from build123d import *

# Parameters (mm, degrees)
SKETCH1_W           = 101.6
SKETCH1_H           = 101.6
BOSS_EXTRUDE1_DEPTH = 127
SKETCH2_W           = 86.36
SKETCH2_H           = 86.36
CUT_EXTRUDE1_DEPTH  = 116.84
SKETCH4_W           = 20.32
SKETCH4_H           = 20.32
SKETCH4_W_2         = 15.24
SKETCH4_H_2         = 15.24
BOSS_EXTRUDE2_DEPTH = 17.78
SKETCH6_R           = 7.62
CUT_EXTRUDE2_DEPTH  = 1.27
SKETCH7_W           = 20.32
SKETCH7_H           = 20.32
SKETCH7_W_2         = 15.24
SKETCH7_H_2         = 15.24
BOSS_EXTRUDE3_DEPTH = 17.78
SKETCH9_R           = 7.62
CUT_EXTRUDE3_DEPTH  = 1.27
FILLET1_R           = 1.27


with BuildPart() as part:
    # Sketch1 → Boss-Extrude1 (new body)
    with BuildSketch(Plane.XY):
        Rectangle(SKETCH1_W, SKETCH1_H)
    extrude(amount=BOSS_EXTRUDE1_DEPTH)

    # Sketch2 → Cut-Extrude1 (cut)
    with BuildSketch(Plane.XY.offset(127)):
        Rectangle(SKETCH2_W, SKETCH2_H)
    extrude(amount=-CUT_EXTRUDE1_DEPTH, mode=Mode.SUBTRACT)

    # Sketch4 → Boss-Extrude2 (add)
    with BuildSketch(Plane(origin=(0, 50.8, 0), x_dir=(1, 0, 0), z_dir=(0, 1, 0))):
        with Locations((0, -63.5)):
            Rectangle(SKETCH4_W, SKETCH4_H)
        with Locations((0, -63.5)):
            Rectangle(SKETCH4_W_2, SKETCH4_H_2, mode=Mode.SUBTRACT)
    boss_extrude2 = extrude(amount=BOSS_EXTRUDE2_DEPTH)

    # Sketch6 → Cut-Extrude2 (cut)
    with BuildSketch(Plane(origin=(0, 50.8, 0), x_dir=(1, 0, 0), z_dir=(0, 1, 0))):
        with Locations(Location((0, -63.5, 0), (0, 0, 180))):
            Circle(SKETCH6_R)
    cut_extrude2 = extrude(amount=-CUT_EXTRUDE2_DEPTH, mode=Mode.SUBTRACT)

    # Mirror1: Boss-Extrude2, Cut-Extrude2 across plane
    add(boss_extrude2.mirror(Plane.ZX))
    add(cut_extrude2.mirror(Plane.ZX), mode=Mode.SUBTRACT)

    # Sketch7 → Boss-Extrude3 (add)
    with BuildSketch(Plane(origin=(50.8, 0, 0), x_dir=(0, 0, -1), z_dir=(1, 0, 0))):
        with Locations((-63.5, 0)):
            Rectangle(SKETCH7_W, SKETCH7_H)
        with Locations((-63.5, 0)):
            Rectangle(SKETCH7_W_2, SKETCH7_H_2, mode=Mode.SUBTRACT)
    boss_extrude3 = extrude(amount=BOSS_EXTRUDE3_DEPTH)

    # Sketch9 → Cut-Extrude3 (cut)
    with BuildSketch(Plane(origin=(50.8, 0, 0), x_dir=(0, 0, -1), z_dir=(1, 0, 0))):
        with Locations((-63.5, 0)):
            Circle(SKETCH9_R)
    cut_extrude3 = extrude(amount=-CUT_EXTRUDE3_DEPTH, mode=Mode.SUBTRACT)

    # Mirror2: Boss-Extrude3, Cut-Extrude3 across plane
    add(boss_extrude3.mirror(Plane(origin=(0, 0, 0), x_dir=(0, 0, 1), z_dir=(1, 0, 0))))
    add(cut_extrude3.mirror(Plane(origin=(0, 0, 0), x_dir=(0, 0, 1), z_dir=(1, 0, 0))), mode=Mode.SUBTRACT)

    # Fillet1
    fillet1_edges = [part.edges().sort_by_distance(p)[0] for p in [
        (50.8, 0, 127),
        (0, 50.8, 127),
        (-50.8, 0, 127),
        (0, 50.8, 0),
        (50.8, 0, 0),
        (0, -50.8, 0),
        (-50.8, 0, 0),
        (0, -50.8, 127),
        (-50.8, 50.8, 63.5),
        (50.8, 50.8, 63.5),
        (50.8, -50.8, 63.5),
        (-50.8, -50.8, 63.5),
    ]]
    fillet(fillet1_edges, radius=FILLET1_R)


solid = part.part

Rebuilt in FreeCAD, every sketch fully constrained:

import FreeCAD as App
import Part
import Sketcher
from FreeCAD import Vector
Q = App.Units.Quantity


def edges_at(feature, points):
    """Names of the edges that pass closest to the given points."""
    edges = feature.Shape.Edges
    near = lambda p: min(range(len(edges)), key=lambda i: edges[i].distToShape(Part.Vertex(*p))[0])
    return sorted({f"Edge{near(p) + 1}" for p in points})


def add_polygon(sketch, points):
    """Adds a closed chain of lines whose ends are joined by coincident constraints."""
    first, n = sketch.GeometryCount, len(points)
    for a, b in zip(points, points[1:] + points[:1]):
        sketch.addGeometry(Part.LineSegment(App.Vector(*a, 0), App.Vector(*b, 0)), False)
    for i in range(n):
        sketch.addConstraint(Sketcher.Constraint("Coincident", first + i, 2, first + (i + 1) % n, 1))

doc = App.newDocument("Part")
body = doc.addObject("PartDesign::Body", "Body")

# Sketch on XY plane
sketch1 = body.newObject("Sketcher::SketchObject", "Sketch")
sketch1.AttachmentSupport = (doc.getObject("XY_Plane"), [""])
sketch1.MapMode = "FlatFace"
add_polygon(sketch1, [(-51, 51), (-51, -51), (51, -51), (51, 51)])  # lines 0-3
sketch1.addConstraint([
    Sketcher.Constraint("Vertical", 0),
    Sketcher.Constraint("Horizontal", 1),
    Sketcher.Constraint("Vertical", 2),
    Sketcher.Constraint("Horizontal", 3),
    Sketcher.Constraint("Symmetric", 0, 2, 2, 2, -1, 1),
    Sketcher.Constraint("Equal", 3, 0),
    Sketcher.Constraint("DistanceX", 1, 1, 1, 2, Q("4 in")),
])
pad1 = body.newObject("PartDesign::Pad", "Pad")
pad1.Profile = sketch1
pad1.Length = Q("5 in")

# Sketch on XY plane
sketch2 = body.newObject("Sketcher::SketchObject", "Sketch001")
sketch2.AttachmentSupport = (doc.getObject("XY_Plane"), [""])
sketch2.MapMode = "FlatFace"
sketch2.AttachmentOffset = App.Placement(Vector(0, 0, 5 * 25.4), App.Rotation())
add_polygon(sketch2, [(-43, 43), (-43, -43), (43, -43), (43, 43)])  # lines 0-3
sketch2.addConstraint([
    Sketcher.Constraint("Vertical", 0),
    Sketcher.Constraint("Horizontal", 1),
    Sketcher.Constraint("Vertical", 2),
    Sketcher.Constraint("Horizontal", 3),
    Sketcher.Constraint("Symmetric", 0, 2, 2, 2, -1, 1),
    Sketcher.Constraint("Equal", 3, 0),
    Sketcher.Constraint("DistanceX", 1, 1, 1, 2, Q("3.4 in")),
])
pocket1 = body.newObject("PartDesign::Pocket", "Pocket")
pocket1.Profile = sketch2
pocket1.Length = Q("4.6 in")

# Sketch on XZ plane
sketch3 = body.newObject("Sketcher::SketchObject", "Sketch002")
sketch3.AttachmentSupport = (doc.getObject("XZ_Plane"), [""])
sketch3.MapMode = "FlatFace"
sketch3.AttachmentOffset = App.Placement(Vector(0, 0, -2 * 25.4), App.Rotation())
add_polygon(sketch3, [(-10, 53), (-10, 74), (10, 74), (10, 53)])  # lines 0-3
add_polygon(sketch3, [(8, 71), (-8, 71), (-8, 56), (8, 56)])  # lines 4-7
sketch3.addConstraint([
    Sketcher.Constraint("Vertical", 0),
    Sketcher.Constraint("Horizontal", 1),
    Sketcher.Constraint("Vertical", 2),
    Sketcher.Constraint("Horizontal", 3),
    Sketcher.Constraint("Horizontal", 4),
    Sketcher.Constraint("Vertical", 5),
    Sketcher.Constraint("Horizontal", 6),
    Sketcher.Constraint("Vertical", 7),
    Sketcher.Constraint("Equal", 3, 0),
    Sketcher.Constraint("Equal", 6, 5),
    Sketcher.Constraint("DistanceX", 1, 1, 1, 2, Q("0.8 in")),
    Sketcher.Constraint("DistanceX", 4, 2, 4, 1, Q("0.6 in")),
    Sketcher.Constraint("DistanceX", 0, 2, -1, 1, Q("0.4 in")),
    Sketcher.Constraint("DistanceY", -1, 1, 0, 2, Q("2.9 in")),
    Sketcher.Constraint("DistanceX", 4, 2, -1, 1, Q("0.3 in")),
    Sketcher.Constraint("DistanceY", -1, 1, 4, 2, Q("2.8 in")),
])
pad2 = body.newObject("PartDesign::Pad", "Pad001")
pad2.Profile = sketch3
pad2.Length = Q("0.7 in")
pad2.Reversed = True

# Sketch on XZ plane
sketch4 = body.newObject("Sketcher::SketchObject", "Sketch003")
sketch4.AttachmentSupport = (doc.getObject("XZ_Plane"), [""])
sketch4.MapMode = "FlatFace"
sketch4.AttachmentOffset = App.Placement(Vector(0, 0, -2 * 25.4), App.Rotation())
sketch4.addGeometry(Part.Circle(Vector(0, 64, 0), Vector(0, 0, 1), 8), False)
sketch4.addConstraint([
    Sketcher.Constraint("PointOnObject", 0, 3, -2),
    Sketcher.Constraint("Diameter", 0, Q("0.6 in")),
    Sketcher.Constraint("DistanceY", -1, 1, 0, 3, Q("2.5 in")),
])
pocket2 = body.newObject("PartDesign::Pocket", "Pocket001")
pocket2.Profile = sketch4
pocket2.Length = Q("0.05 in")
pocket2.Reversed = True
doc.recompute()

mirrored = body.newObject("PartDesign::Mirrored", "Mirrored")
mirrored.Originals = [pad2, pocket2]
mirrored.MirrorPlane = (doc.getObject("XZ_Plane"), [""])
body.Tip = mirrored

# Sketch on YZ plane
sketch5 = body.newObject("Sketcher::SketchObject", "Sketch004")
sketch5.AttachmentSupport = (doc.getObject("YZ_Plane"), [""])
sketch5.MapMode = "FlatFace"
sketch5.AttachmentOffset = App.Placement(Vector(0, 0, 2 * 25.4), App.Rotation())
add_polygon(sketch5, [(10, 74), (-10, 74), (-10, 53), (10, 53)])  # lines 0-3
add_polygon(sketch5, [(-8, 56), (-8, 71), (8, 71), (8, 56)])  # lines 4-7
sketch5.addConstraint([
    Sketcher.Constraint("Horizontal", 0),
    Sketcher.Constraint("Vertical", 1),
    Sketcher.Constraint("Horizontal", 2),
    Sketcher.Constraint("Vertical", 3),
    Sketcher.Constraint("Vertical", 4),
    Sketcher.Constraint("Horizontal", 5),
    Sketcher.Constraint("Vertical", 6),
    Sketcher.Constraint("Horizontal", 7),
    Sketcher.Constraint("Equal", 2, 1),
    Sketcher.Constraint("Equal", 7, 4),
    Sketcher.Constraint("DistanceX", 0, 2, 0, 1, Q("0.8 in")),
    Sketcher.Constraint("DistanceX", 5, 1, 5, 2, Q("0.6 in")),
    Sketcher.Constraint("DistanceX", 0, 2, -1, 1, Q("0.4 in")),
    Sketcher.Constraint("DistanceY", -1, 1, 0, 2, Q("2.9 in")),
    Sketcher.Constraint("DistanceX", 4, 2, -1, 1, Q("0.3 in")),
    Sketcher.Constraint("DistanceY", -1, 1, 4, 2, Q("2.8 in")),
])
pad3 = body.newObject("PartDesign::Pad", "Pad002")
pad3.Profile = sketch5
pad3.Length = Q("0.7 in")

# Sketch on YZ plane
sketch6 = body.newObject("Sketcher::SketchObject", "Sketch005")
sketch6.AttachmentSupport = (doc.getObject("YZ_Plane"), [""])
sketch6.MapMode = "FlatFace"
sketch6.AttachmentOffset = App.Placement(Vector(0, 0, 2 * 25.4), App.Rotation())
sketch6.addGeometry(Part.Circle(Vector(0, 64, 0), Vector(0, 0, 1), 8), False)
sketch6.addConstraint([
    Sketcher.Constraint("PointOnObject", 0, 3, -2),
    Sketcher.Constraint("Diameter", 0, Q("0.6 in")),
    Sketcher.Constraint("DistanceY", -1, 1, 0, 3, Q("2.5 in")),
])
pocket3 = body.newObject("PartDesign::Pocket", "Pocket002")
pocket3.Profile = sketch6
pocket3.Length = Q("0.05 in")
doc.recompute()

mirrored2 = body.newObject("PartDesign::Mirrored", "Mirrored001")
mirrored2.Originals = [pad3, pocket3]
mirrored2.MirrorPlane = (doc.getObject("YZ_Plane"), [""])
body.Tip = mirrored2
doc.recompute()

fillet = body.newObject("PartDesign::Fillet", "Fillet")
fillet.Base = (mirrored2, edges_at(mirrored2, [
    (50.8, 0, 127),
    (0, 50.8, 127),
    (-50.8, 0, 127),
    (0, 50.8, 0),
    (50.8, 0, 0),
    (0, -50.8, 0),
    (-50.8, 0, 0),
    (0, -50.8, 127),
    (-50.8, 50.8, 63.5),
    (50.8, 50.8, 63.5),
    (50.8, -50.8, 63.5),
    (-50.8, -50.8, 63.5),
]))
fillet.Radius = Q("0.05 in")

doc.recompute()
